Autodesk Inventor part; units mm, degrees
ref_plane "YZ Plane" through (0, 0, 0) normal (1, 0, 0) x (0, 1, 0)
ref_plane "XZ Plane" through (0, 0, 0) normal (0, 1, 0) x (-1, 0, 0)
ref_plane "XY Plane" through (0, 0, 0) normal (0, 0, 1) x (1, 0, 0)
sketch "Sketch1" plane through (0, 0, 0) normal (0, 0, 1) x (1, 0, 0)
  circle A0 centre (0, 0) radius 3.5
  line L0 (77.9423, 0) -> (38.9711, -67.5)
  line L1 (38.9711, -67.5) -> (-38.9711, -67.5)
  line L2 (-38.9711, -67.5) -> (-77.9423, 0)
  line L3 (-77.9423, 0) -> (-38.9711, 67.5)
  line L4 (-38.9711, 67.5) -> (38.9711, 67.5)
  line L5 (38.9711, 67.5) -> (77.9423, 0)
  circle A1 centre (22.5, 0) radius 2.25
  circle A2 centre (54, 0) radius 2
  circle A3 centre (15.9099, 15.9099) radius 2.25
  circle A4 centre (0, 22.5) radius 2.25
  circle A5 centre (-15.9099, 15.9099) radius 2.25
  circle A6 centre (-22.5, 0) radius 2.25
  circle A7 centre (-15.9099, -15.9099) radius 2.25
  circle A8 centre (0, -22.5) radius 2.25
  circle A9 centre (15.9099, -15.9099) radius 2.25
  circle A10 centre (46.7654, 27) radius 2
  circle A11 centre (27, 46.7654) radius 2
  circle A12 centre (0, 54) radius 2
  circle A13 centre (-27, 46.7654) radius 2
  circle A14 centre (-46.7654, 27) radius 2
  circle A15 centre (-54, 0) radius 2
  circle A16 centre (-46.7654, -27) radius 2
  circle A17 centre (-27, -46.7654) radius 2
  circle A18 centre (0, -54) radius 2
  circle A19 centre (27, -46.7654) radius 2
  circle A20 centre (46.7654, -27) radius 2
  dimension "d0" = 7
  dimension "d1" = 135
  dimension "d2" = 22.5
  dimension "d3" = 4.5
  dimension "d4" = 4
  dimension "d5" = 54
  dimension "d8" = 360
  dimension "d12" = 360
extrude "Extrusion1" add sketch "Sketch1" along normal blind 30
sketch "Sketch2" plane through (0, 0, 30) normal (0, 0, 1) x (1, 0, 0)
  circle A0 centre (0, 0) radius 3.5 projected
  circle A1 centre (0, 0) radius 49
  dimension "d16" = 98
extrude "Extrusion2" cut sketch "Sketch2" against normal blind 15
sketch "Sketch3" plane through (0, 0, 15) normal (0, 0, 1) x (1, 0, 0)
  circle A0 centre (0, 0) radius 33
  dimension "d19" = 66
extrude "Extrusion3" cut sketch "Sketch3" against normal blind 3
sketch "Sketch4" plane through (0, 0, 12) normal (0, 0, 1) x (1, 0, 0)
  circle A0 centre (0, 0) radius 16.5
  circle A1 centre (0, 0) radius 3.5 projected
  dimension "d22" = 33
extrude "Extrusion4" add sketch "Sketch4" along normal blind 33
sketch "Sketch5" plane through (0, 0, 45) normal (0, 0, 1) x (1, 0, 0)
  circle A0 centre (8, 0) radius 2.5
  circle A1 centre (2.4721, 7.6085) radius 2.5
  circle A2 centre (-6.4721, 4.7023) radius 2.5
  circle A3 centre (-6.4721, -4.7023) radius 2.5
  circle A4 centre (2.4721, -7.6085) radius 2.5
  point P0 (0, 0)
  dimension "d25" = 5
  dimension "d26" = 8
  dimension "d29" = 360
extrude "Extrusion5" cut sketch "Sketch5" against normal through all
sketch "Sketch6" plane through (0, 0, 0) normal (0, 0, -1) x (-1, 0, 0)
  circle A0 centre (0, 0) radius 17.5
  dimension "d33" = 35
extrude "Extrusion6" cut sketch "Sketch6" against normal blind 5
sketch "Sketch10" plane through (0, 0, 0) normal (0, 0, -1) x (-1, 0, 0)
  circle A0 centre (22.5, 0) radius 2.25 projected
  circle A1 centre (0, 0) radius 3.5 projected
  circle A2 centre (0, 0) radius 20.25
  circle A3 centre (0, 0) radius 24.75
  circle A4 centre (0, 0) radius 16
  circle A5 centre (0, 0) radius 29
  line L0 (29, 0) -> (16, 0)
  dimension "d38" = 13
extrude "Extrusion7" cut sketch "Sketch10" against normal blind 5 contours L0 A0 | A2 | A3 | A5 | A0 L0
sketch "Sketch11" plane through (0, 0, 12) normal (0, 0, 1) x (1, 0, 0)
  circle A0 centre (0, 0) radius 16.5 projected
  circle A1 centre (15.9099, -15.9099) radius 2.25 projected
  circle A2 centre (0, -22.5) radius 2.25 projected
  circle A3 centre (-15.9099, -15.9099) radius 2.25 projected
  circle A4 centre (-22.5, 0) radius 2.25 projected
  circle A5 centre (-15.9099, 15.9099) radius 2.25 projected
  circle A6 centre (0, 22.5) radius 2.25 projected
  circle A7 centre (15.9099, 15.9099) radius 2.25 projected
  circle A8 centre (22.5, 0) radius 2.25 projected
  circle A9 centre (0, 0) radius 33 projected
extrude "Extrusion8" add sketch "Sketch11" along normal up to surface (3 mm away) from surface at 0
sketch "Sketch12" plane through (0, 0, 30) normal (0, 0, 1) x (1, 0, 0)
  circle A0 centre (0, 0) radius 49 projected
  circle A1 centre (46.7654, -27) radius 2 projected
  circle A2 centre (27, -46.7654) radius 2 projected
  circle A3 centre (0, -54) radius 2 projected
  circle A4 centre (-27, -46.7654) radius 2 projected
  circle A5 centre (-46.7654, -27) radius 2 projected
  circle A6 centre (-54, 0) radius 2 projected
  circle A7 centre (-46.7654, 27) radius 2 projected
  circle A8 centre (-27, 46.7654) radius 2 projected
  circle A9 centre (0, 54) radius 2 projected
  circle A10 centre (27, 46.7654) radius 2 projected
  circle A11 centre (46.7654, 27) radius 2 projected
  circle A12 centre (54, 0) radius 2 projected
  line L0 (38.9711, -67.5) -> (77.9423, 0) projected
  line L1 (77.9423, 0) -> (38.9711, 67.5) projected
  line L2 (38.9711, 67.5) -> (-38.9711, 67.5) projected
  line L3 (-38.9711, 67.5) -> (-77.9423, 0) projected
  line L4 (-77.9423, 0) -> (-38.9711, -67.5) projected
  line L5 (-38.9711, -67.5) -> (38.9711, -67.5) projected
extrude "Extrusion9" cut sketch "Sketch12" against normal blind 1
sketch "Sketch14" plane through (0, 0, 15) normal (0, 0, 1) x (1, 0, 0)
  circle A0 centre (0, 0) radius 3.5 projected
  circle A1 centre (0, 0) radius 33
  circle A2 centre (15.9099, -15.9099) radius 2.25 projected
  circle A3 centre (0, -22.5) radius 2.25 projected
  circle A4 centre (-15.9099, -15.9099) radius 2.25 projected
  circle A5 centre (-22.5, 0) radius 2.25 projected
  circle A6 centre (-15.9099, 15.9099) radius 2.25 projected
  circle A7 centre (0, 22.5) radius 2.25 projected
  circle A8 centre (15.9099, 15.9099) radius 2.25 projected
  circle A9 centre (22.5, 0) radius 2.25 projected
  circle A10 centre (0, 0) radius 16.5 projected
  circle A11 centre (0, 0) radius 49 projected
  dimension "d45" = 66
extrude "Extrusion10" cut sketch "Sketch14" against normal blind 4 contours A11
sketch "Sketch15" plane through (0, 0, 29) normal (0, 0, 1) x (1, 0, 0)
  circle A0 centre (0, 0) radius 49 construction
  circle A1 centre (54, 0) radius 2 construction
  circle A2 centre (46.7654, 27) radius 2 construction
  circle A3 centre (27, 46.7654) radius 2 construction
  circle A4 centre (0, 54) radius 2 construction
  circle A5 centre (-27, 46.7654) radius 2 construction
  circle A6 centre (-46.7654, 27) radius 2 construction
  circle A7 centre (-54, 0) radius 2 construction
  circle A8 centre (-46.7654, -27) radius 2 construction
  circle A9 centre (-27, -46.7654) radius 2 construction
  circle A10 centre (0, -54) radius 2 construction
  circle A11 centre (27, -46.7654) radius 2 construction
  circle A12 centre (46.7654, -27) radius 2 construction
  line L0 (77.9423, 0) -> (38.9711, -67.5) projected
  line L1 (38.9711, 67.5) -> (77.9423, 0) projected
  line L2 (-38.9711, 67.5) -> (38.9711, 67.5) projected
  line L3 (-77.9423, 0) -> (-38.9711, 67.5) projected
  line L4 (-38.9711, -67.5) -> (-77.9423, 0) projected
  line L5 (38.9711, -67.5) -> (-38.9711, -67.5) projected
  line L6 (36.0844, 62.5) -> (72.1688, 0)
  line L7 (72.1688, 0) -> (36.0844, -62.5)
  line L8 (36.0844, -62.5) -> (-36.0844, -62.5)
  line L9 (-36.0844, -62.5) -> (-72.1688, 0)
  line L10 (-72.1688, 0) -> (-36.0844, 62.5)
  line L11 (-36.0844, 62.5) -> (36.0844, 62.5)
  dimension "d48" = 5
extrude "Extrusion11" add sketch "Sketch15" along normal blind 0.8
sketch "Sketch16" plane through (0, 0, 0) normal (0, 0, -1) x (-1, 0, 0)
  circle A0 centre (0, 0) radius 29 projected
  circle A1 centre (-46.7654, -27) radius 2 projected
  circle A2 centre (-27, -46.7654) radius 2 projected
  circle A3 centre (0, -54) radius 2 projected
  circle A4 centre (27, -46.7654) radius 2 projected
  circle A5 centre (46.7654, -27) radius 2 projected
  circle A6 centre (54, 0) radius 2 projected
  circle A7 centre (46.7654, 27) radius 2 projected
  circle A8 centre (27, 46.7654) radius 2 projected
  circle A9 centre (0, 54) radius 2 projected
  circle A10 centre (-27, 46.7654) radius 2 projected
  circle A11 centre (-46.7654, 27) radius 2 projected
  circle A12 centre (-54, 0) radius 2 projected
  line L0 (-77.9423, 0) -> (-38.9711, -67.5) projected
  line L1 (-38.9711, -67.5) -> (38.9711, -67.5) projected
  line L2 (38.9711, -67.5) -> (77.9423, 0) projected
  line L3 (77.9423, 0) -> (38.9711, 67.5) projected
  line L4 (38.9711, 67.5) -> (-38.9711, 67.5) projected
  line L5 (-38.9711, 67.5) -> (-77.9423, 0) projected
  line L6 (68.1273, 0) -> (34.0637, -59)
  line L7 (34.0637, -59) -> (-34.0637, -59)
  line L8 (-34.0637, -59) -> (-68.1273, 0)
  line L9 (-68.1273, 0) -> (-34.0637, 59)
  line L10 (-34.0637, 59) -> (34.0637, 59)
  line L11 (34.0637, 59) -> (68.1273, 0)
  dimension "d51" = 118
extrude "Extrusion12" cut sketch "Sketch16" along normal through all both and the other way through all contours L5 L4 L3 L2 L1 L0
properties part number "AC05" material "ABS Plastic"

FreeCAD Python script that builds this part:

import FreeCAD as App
import Part
import Sketcher

V = App.Vector
Q = App.Units.Quantity

doc = App.newDocument("Part")
body = doc.addObject("PartDesign::Body", "Body")

# Sketch on XY plane
sketch1 = body.newObject("Sketcher::SketchObject", "Sketch")
sketch1.AttachmentSupport = (doc.getObject("XY_Plane"), [""])
sketch1.MapMode = "FlatFace"
sketch1.addGeometry([
    Part.LineSegment(V(39, -67.5, 0), V(77.9, 0, 0)),  # 0
    Part.LineSegment(V(77.9, 0, 0), V(39, 67.5, 0)),  # 1
    Part.LineSegment(V(39, 67.5, 0), V(-39, 67.5, 0)),  # 2
    Part.LineSegment(V(-39, 67.5, 0), V(-77.9, 0, 0)),  # 3
    Part.LineSegment(V(-77.9, 0, 0), V(-39, -67.5, 0)),  # 4
    Part.LineSegment(V(-39, -67.5, 0), V(39, -67.5, 0)),  # 5
    Part.Circle(V(-27, -46.8, 0), V(0, 0, 1), 2),  # 6
    Part.Circle(V(-46.8, -27, 0), V(0, 0, 1), 2),  # 7
    Part.Circle(V(-15.9, -15.9, 0), V(0, 0, 1), 2.2),  # 8
    Part.Circle(V(0, -54, 0), V(0, 0, 1), 2),  # 9
    Part.Circle(V(27, -46.8, 0), V(0, 0, 1), 2),  # 10
    Part.Circle(V(0, -22.5, 0), V(0, 0, 1), 2.2),  # 11
    Part.Circle(V(15.9, -15.9, 0), V(0, 0, 1), 2.2),  # 12
    Part.Circle(V(46.8, -27, 0), V(0, 0, 1), 2),  # 13
    Part.Circle(V(-54, 0, 0), V(0, 0, 1), 2),  # 14
    Part.Circle(V(-46.8, 27, 0), V(0, 0, 1), 2),  # 15
    Part.Circle(V(-22.5, 0, 0), V(0, 0, 1), 2.2),  # 16
    Part.Circle(V(-15.9, 15.9, 0), V(0, 0, 1), 2.2),  # 17
    Part.Circle(V(-27, 46.8, 0), V(0, 0, 1), 2),  # 18
    Part.Circle(V(0, 0, 0), V(0, 0, 1), 3.5),  # 19
    Part.Circle(V(15.9, 15.9, 0), V(0, 0, 1), 2.2),  # 20
    Part.Circle(V(22.5, 0, 0), V(0, 0, 1), 2.2),  # 21
    Part.Circle(V(0, 22.5, 0), V(0, 0, 1), 2.2),  # 22
    Part.Circle(V(54, 0, 0), V(0, 0, 1), 2),  # 23
    Part.Circle(V(46.8, 27, 0), V(0, 0, 1), 2),  # 24
    Part.Circle(V(27, 46.8, 0), V(0, 0, 1), 2),  # 25
    Part.Circle(V(0, 54, 0), V(0, 0, 1), 2),  # 26
], False)
sketch1.addConstraint([
    Sketcher.Constraint("Coincident", 0, 2, 1, 1),
    Sketcher.Constraint("Coincident", 1, 2, 2, 1),
    Sketcher.Constraint("Coincident", 2, 2, 3, 1),
    Sketcher.Constraint("Coincident", 3, 2, 4, 1),
    Sketcher.Constraint("Coincident", 4, 2, 5, 1),
    Sketcher.Constraint("Coincident", 5, 2, 0, 1),
    Sketcher.Constraint("Horizontal", 2),
    Sketcher.Constraint("Horizontal", 5),
    Sketcher.Constraint("Coincident", 19, 3, -1, 1),
    Sketcher.Constraint("Equal", 6, 7),
    Sketcher.Constraint("Equal", 7, 9),
    Sketcher.Constraint("Equal", 9, 10),
    Sketcher.Constraint("Equal", 8, 11),
    Sketcher.Constraint("Equal", 11, 12),
    Sketcher.Constraint("Equal", 10, 13),
    Sketcher.Constraint("Equal", 13, 14),
    Sketcher.Constraint("Equal", 14, 15),
    Sketcher.Constraint("Equal", 12, 16),
    Sketcher.Constraint("Equal", 16, 17),
    Sketcher.Constraint("Equal", 15, 18),
    Sketcher.Constraint("Equal", 17, 20),
    Sketcher.Constraint("Equal", 20, 21),
    Sketcher.Constraint("Equal", 21, 22),
    Sketcher.Constraint("Equal", 18, 23),
    Sketcher.Constraint("Equal", 23, 24),
    Sketcher.Constraint("Equal", 24, 25),
    Sketcher.Constraint("Equal", 25, 26),
    Sketcher.Constraint("Symmetric", 13, 3, 15, 3, -1, 1),
    Sketcher.Constraint("Symmetric", 12, 3, 17, 3, -1, 1),
    Sketcher.Constraint("Symmetric", 10, 3, 18, 3, -1, 1),
    Sketcher.Constraint("Symmetric", 8, 3, 20, 3, -1, 1),
    Sketcher.Constraint("Symmetric", 16, 3, 21, 3, -1, 1),
    Sketcher.Constraint("Symmetric", 11, 3, 22, 3, -1, 1),
    Sketcher.Constraint("Symmetric", 14, 3, 23, 3, -1, 1),
    Sketcher.Constraint("Symmetric", 7, 3, 24, 3, -1, 1),
    Sketcher.Constraint("Symmetric", 6, 3, 25, 3, -1, 1),
    Sketcher.Constraint("Symmetric", 9, 3, 26, 3, -1, 1),
    Sketcher.Constraint("Symmetric", 0, 2, 3, 2, -1, 1),
    Sketcher.Constraint("Symmetric", 1, 2, 4, 2, -1, 1),
    Sketcher.Constraint("Symmetric", 6, 3, 10, 3, -2),
    Sketcher.Constraint("Symmetric", 8, 3, 12, 3, -2),
    Sketcher.Constraint("Symmetric", 7, 3, 13, 3, -2),
    Sketcher.Constraint("PointOnObject", 9, 3, -2),
    Sketcher.Constraint("PointOnObject", 11, 3, -2),
    Sketcher.Constraint("PointOnObject", 14, 3, -1),
    Sketcher.Constraint("PointOnObject", 16, 3, -1),
    Sketcher.Constraint("PointOnObject", 0, 2, -1),
    Sketcher.Constraint("Parallel", 0, 3),
    Sketcher.Constraint("Vertical", 2, 2, 4, 2),
    Sketcher.Constraint("Diameter", 6, 4.0),
    Sketcher.Constraint("Diameter", 19, 7.0),
    Sketcher.Constraint("Diameter", 8, 4.5),
    Sketcher.Constraint("DistanceY", 9, 3, -1, 1, 54.0),
    Sketcher.Constraint("DistanceX", 14, 3, -1, 1, 54.0),
    Sketcher.Constraint("DistanceX", 6, 3, 10, 3, 54.0),
    Sketcher.Constraint("DistanceY", 7, 3, 15, 3, 54.0),
    Sketcher.Constraint("DistanceY", 11, 3, -1, 1, 22.5),
    Sketcher.Constraint("DistanceX", 16, 3, -1, 1, 22.5),
    Sketcher.Constraint("Angle", 0, Q("60 deg")),
    Sketcher.Constraint("DistanceY", 22, 3, 1, 2, 45.0),
    Sketcher.Constraint("DistanceX", 8, 3, -1, 1, 15.91),
    Sketcher.Constraint("DistanceY", 8, 3, -1, 1, 15.91),
    Sketcher.Constraint("DistanceX", 2, 2, 2, 1, 77.9422),
    Sketcher.Constraint("DistanceX", 13, 3, 0, 2, 31.177),
    Sketcher.Constraint("DistanceY", 6, 3, -1, 1, 46.7654),
])
pad1 = body.newObject("PartDesign::Pad", "Pad")
pad1.Profile = sketch1
pad1.Length = 30

# Sketch on XY plane
sketch2 = body.newObject("Sketcher::SketchObject", "Sketch001")
sketch2.AttachmentSupport = (doc.getObject("XY_Plane"), [""])
sketch2.MapMode = "FlatFace"
sketch2.AttachmentOffset = App.Placement(V(0, 0, 30), App.Rotation())
sketch2.addGeometry([
    Part.Circle(V(0, 0, 0), V(0, 0, 1), 49),
    Part.Circle(V(0, 0, 0), V(0, 0, 1), 3.5),
], False)
sketch2.addConstraint([
    Sketcher.Constraint("Coincident", 0, 3, -1, 1),
    Sketcher.Constraint("Coincident", 1, 3, -1, 1),
    Sketcher.Constraint("Diameter", 0, 98.0),
    Sketcher.Constraint("Diameter", 1, 7.0),
])
pocket1 = body.newObject("PartDesign::Pocket", "Pocket")
pocket1.Profile = sketch2
pocket1.Length = 15

# Sketch on XY plane
sketch3 = body.newObject("Sketcher::SketchObject", "Sketch002")
sketch3.AttachmentSupport = (doc.getObject("XY_Plane"), [""])
sketch3.MapMode = "FlatFace"
sketch3.AttachmentOffset = App.Placement(V(0, 0, 15), App.Rotation())
sketch3.addGeometry(Part.Circle(V(0, 0, 0), V(0, 0, 1), 33), False)
sketch3.addConstraint([
    Sketcher.Constraint("Coincident", 0, 3, -1, 1),
    Sketcher.Constraint("Diameter", 0, 66.0),
])
pocket2 = body.newObject("PartDesign::Pocket", "Pocket001")
pocket2.Profile = sketch3
pocket2.Length = 3

# Sketch on XY plane
sketch4 = body.newObject("Sketcher::SketchObject", "Sketch003")
sketch4.AttachmentSupport = (doc.getObject("XY_Plane"), [""])
sketch4.MapMode = "FlatFace"
sketch4.AttachmentOffset = App.Placement(V(0, 0, 12), App.Rotation())
sketch4.addGeometry([
    Part.Circle(V(0, 0, 0), V(0, 0, 1), 16.5),
    Part.Circle(V(0, 0, 0), V(0, 0, 1), 3.5),
], False)
sketch4.addConstraint([
    Sketcher.Constraint("Coincident", 0, 3, -1, 1),
    Sketcher.Constraint("Coincident", 1, 3, -1, 1),
    Sketcher.Constraint("Diameter", 0, 33.0),
    Sketcher.Constraint("Diameter", 1, 7.0),
])
pad2 = body.newObject("PartDesign::Pad", "Pad001")
pad2.Profile = sketch4
pad2.Length = 33

# Sketch on XY plane
sketch5 = body.newObject("Sketcher::SketchObject", "Sketch004")
sketch5.AttachmentSupport = (doc.getObject("XY_Plane"), [""])
sketch5.MapMode = "FlatFace"
sketch5.AttachmentOffset = App.Placement(V(0, 0, 45), App.Rotation())
sketch5.addGeometry([
    Part.Circle(V(8, 0, 0), V(0, 0, 1), 2.5),  # 0
    Part.Circle(V(2.5, 7.6, 0), V(0, 0, 1), 2.5),  # 1
    Part.Circle(V(-6.5, 4.7, 0), V(0, 0, 1), 2.5),  # 2
    Part.Circle(V(-6.5, -4.7, 0), V(0, 0, 1), 2.5),  # 3
    Part.Circle(V(2.5, -7.6, 0), V(0, 0, 1), 2.5),  # 4
], False)
sketch5.addConstraint([
    Sketcher.Constraint("Equal", 0, 1),
    Sketcher.Constraint("Equal", 1, 2),
    Sketcher.Constraint("Equal", 2, 3),
    Sketcher.Constraint("Equal", 3, 4),
    Sketcher.Constraint("Symmetric", 2, 3, 3, 3, -1),
    Sketcher.Constraint("Symmetric", 1, 3, 4, 3, -1),
    Sketcher.Constraint("PointOnObject", 0, 3, -1),
    Sketcher.Constraint("Diameter", 0, 5.0),
    Sketcher.Constraint("DistanceX", -1, 1, 0, 3, 8.0),
    Sketcher.Constraint("DistanceX", -1, 1, 1, 3, 2.472),
    Sketcher.Constraint("DistanceX", 2, 3, -1, 1, 6.472),
    Sketcher.Constraint("DistanceY", 4, 3, 1, 3, 15.217),
    Sketcher.Constraint("DistanceY", -1, 1, 2, 3, 4.7023),
])
pocket3 = body.newObject("PartDesign::Pocket", "Pocket002")
pocket3.Profile = sketch5
pocket3.Type = "ThroughAll"

# Sketch on XY plane
sketch6 = body.newObject("Sketcher::SketchObject", "Sketch005")
sketch6.AttachmentSupport = (doc.getObject("XY_Plane"), [""])
sketch6.MapMode = "FlatFace"
sketch6.addGeometry(Part.Circle(V(0, 0, 0), V(0, 0, 1), 18), False)
sketch6.addConstraint([
    Sketcher.Constraint("Coincident", 0, 3, -1, 1),
    Sketcher.Constraint("Diameter", 0, 35.0),
])
pocket4 = body.newObject("PartDesign::Pocket", "Pocket003")
pocket4.Profile = sketch6
pocket4.Length = 5
pocket4.Reversed = True

# Sketch on XY plane
sketch7 = body.newObject("Sketcher::SketchObject", "Sketch006")
sketch7.AttachmentSupport = (doc.getObject("XY_Plane"), [""])
sketch7.MapMode = "FlatFace"
sketch7.addGeometry([
    Part.Circle(V(0, 0, 0), V(0, 0, 1), 29),
    Part.Circle(V(0, 0, 0), V(0, 0, 1), 16),
], False)
sketch7.addConstraint([
    Sketcher.Constraint("Coincident", 0, 3, -1, 1),
    Sketcher.Constraint("Coincident", 1, 3, -1, 1),
    Sketcher.Constraint("Diameter", 0, 58.0),
    Sketcher.Constraint("Diameter", 1, 32.0),
])
pocket5 = body.newObject("PartDesign::Pocket", "Pocket004")
pocket5.Profile = sketch7
pocket5.Length = 5
pocket5.Reversed = True

# Sketch on XY plane
sketch8 = body.newObject("Sketcher::SketchObject", "Sketch007")
sketch8.AttachmentSupport = (doc.getObject("XY_Plane"), [""])
sketch8.MapMode = "FlatFace"
sketch8.AttachmentOffset = App.Placement(V(0, 0, 12), App.Rotation())
sketch8.addGeometry([
    Part.Circle(V(0, 0, 0), V(0, 0, 1), 33),  # 0
    Part.Circle(V(-15.9, -15.9, 0), V(0, 0, 1), 2.2),  # 1
    Part.Circle(V(0, -22.5, 0), V(0, 0, 1), 2.2),  # 2
    Part.Circle(V(15.9, -15.9, 0), V(0, 0, 1), 2.2),  # 3
    Part.Circle(V(-22.5, 0, 0), V(0, 0, 1), 2.2),  # 4
    Part.Circle(V(-15.9, 15.9, 0), V(0, 0, 1), 2.2),  # 5
    Part.Circle(V(0, 0, 0), V(0, 0, 1), 16.5),  # 6
    Part.Circle(V(15.9, 15.9, 0), V(0, 0, 1), 2.2),  # 7
    Part.Circle(V(22.5, 0, 0), V(0, 0, 1), 2.2),  # 8
    Part.Circle(V(0, 22.5, 0), V(0, 0, 1), 2.2),  # 9
], False)
sketch8.addConstraint([
    Sketcher.Constraint("Coincident", 0, 3, -1, 1),
    Sketcher.Constraint("Coincident", 6, 3, -1, 1),
    Sketcher.Constraint("Equal", 1, 2),
    Sketcher.Constraint("Equal", 2, 3),
    Sketcher.Constraint("Equal", 3, 4),
    Sketcher.Constraint("Equal", 4, 5),
    Sketcher.Constraint("Equal", 5, 7),
    Sketcher.Constraint("Equal", 7, 8),
    Sketcher.Constraint("Equal", 8, 9),
    Sketcher.Constraint("Symmetric", 3, 3, 5, 3, -1, 1),
    Sketcher.Constraint("Symmetric", 1, 3, 7, 3, -1, 1),
    Sketcher.Constraint("Symmetric", 4, 3, 8, 3, -1, 1),
    Sketcher.Constraint("Symmetric", 2, 3, 9, 3, -1, 1),
    Sketcher.Constraint("Symmetric", 1, 3, 3, 3, -2),
    Sketcher.Constraint("PointOnObject", 2, 3, -2),
    Sketcher.Constraint("PointOnObject", 4, 3, -1),
    Sketcher.Constraint("Diameter", 0, 66.0),
    Sketcher.Constraint("Diameter", 6, 33.0),
    Sketcher.Constraint("Diameter", 1, 4.5),
    Sketcher.Constraint("DistanceY", 2, 3, -1, 1, 22.5),
    Sketcher.Constraint("DistanceX", 4, 3, -1, 1, 22.5),
    Sketcher.Constraint("DistanceX", 1, 3, -1, 1, 15.91),
    Sketcher.Constraint("DistanceY", 1, 3, -1, 1, 15.91),
])
pad3 = body.newObject("PartDesign::Pad", "Pad002")
pad3.Profile = sketch8
pad3.Length = 3

# Sketch on XY plane
sketch9 = body.newObject("Sketcher::SketchObject", "Sketch008")
sketch9.AttachmentSupport = (doc.getObject("XY_Plane"), [""])
sketch9.MapMode = "FlatFace"
sketch9.AttachmentOffset = App.Placement(V(0, 0, 30), App.Rotation())
sketch9.addGeometry([
    Part.LineSegment(V(-39, -67.5, 0), V(39, -67.5, 0)),  # 0
    Part.LineSegment(V(39, -67.5, 0), V(77.9, 0, 0)),  # 1
    Part.LineSegment(V(77.9, 0, 0), V(39, 67.5, 0)),  # 2
    Part.LineSegment(V(39, 67.5, 0), V(-39, 67.5, 0)),  # 3
    Part.LineSegment(V(-39, 67.5, 0), V(-77.9, 0, 0)),  # 4
    Part.LineSegment(V(-77.9, 0, 0), V(-39, -67.5, 0)),  # 5
    Part.Circle(V(-27, -46.8, 0), V(0, 0, 1), 2),  # 6
    Part.Circle(V(-46.8, -27, 0), V(0, 0, 1), 2),  # 7
    Part.Circle(V(0, -54, 0), V(0, 0, 1), 2),  # 8
    Part.Circle(V(27, -46.8, 0), V(0, 0, 1), 2),  # 9
    Part.Circle(V(46.8, -27, 0), V(0, 0, 1), 2),  # 10
    Part.Circle(V(-54, 0, 0), V(0, 0, 1), 2),  # 11
    Part.Circle(V(-46.8, 27, 0), V(0, 0, 1), 2),  # 12
    Part.Circle(V(-27, 46.8, 0), V(0, 0, 1), 2),  # 13
    Part.Circle(V(0, 0, 0), V(0, 0, 1), 49),  # 14
    Part.Circle(V(54, 0, 0), V(0, 0, 1), 2),  # 15
    Part.Circle(V(46.8, 27, 0), V(0, 0, 1), 2),  # 16
    Part.Circle(V(27, 46.8, 0), V(0, 0, 1), 2),  # 17
    Part.Circle(V(0, 54, 0), V(0, 0, 1), 2),  # 18
], False)
sketch9.addConstraint([
    Sketcher.Constraint("Coincident", 0, 2, 1, 1),
    Sketcher.Constraint("Coincident", 1, 2, 2, 1),
    Sketcher.Constraint("Coincident", 2, 2, 3, 1),
    Sketcher.Constraint("Coincident", 3, 2, 4, 1),
    Sketcher.Constraint("Coincident", 4, 2, 5, 1),
    Sketcher.Constraint("Coincident", 5, 2, 0, 1),
    Sketcher.Constraint("Horizontal", 0),
    Sketcher.Constraint("Horizontal", 3),
    Sketcher.Constraint("Coincident", 14, 3, -1, 1),
    Sketcher.Constraint("Equal", 6, 7),
    Sketcher.Constraint("Equal", 7, 8),
    Sketcher.Constraint("Equal", 8, 9),
    Sketcher.Constraint("Equal", 9, 10),
    Sketcher.Constraint("Equal", 10, 11),
    Sketcher.Constraint("Equal", 11, 12),
    Sketcher.Constraint("Equal", 12, 13),
    Sketcher.Constraint("Equal", 13, 15),
    Sketcher.Constraint("Equal", 15, 16),
    Sketcher.Constraint("Equal", 16, 17),
    Sketcher.Constraint("Equal", 17, 18),
    Sketcher.Constraint("Symmetric", 10, 3, 12, 3, -1, 1),
    Sketcher.Constraint("Symmetric", 9, 3, 13, 3, -1, 1),
    Sketcher.Constraint("Symmetric", 11, 3, 15, 3, -1, 1),
    Sketcher.Constraint("Symmetric", 7, 3, 16, 3, -1, 1),
    Sketcher.Constraint("Symmetric", 6, 3, 17, 3, -1, 1),
    Sketcher.Constraint("Symmetric", 8, 3, 18, 3, -1, 1),
    Sketcher.Constraint("Symmetric", 0, 2, 3, 2, -1, 1),
    Sketcher.Constraint("Symmetric", 1, 2, 4, 2, -1, 1),
    Sketcher.Constraint("Symmetric", 6, 3, 9, 3, -2),
    Sketcher.Constraint("Symmetric", 7, 3, 10, 3, -2),
    Sketcher.Constraint("PointOnObject", 8, 3, -2),
    Sketcher.Constraint("PointOnObject", 11, 3, -1),
    Sketcher.Constraint("PointOnObject", 1, 2, -1),
    Sketcher.Constraint("Parallel", 2, 5),
    Sketcher.Constraint("Vertical", 0, 2, 2, 2),
    Sketcher.Constraint("Diameter", 6, 4.0),
    Sketcher.Constraint("Diameter", 14, 98.0),
    Sketcher.Constraint("Angle", 1, Q("60 deg")),
    Sketcher.Constraint("DistanceX", 6, 3, -1, 1, 27.0),
    Sketcher.Constraint("DistanceY", 7, 3, -1, 1, 27.0),
    Sketcher.Constraint("DistanceY", 8, 3, -1, 1, 54.0),
    Sketcher.Constraint("DistanceX", 11, 3, -1, 1, 54.0),
    Sketcher.Constraint("DistanceY", 0, 2, -1, 1, 67.5),
    Sketcher.Constraint("DistanceX", 0, 1, 0, 2, 77.9422),
    Sketcher.Constraint("DistanceX", 10, 3, 1, 2, 31.177),
    Sketcher.Constraint("DistanceY", 6, 3, -1, 1, 46.7654),
])
pocket6 = body.newObject("PartDesign::Pocket", "Pocket005")
pocket6.Profile = sketch9
pocket6.Length = 1

# Sketch on XY plane
sketch10 = body.newObject("Sketcher::SketchObject", "Sketch009")
sketch10.AttachmentSupport = (doc.getObject("XY_Plane"), [""])
sketch10.MapMode = "FlatFace"
sketch10.AttachmentOffset = App.Placement(V(0, 0, 15), App.Rotation())
sketch10.addGeometry([
    Part.Circle(V(0, 0, 0), V(0, 0, 1), 49),
    Part.Circle(V(0, 0, 0), V(0, 0, 1), 33),
], False)
sketch10.addConstraint([
    Sketcher.Constraint("Coincident", 0, 3, -1, 1),
    Sketcher.Constraint("Coincident", 1, 3, -1, 1),
    Sketcher.Constraint("Diameter", 1, 66.0),
    Sketcher.Constraint("Diameter", 0, 98.0),
])
pocket7 = body.newObject("PartDesign::Pocket", "Pocket006")
pocket7.Profile = sketch10
pocket7.Length = 4

# Sketch on XY plane
sketch11 = body.newObject("Sketcher::SketchObject", "Sketch010")
sketch11.AttachmentSupport = (doc.getObject("XY_Plane"), [""])
sketch11.MapMode = "FlatFace"
sketch11.AttachmentOffset = App.Placement(V(0, 0, 29), App.Rotation())
sketch11.addGeometry([
    Part.LineSegment(V(39, -68, 0), V(78, 0, 0)),  # 0
    Part.LineSegment(V(78, 0, 0), V(39, 68, 0)),  # 1
    Part.LineSegment(V(39, 68, 0), V(-39, 68, 0)),  # 2
    Part.LineSegment(V(-39, 68, 0), V(-78, 0, 0)),  # 3
    Part.LineSegment(V(-78, 0, 0), V(-39, -68, 0)),  # 4
    Part.LineSegment(V(-39, -68, 0), V(39, -68, 0)),  # 5
    Part.LineSegment(V(-36, 62, 0), V(36, 62, 0)),  # 6
    Part.LineSegment(V(36, 62, 0), V(72, 0, 0)),  # 7
    Part.LineSegment(V(72, 0, 0), V(36, -62, 0)),  # 8
    Part.LineSegment(V(36, -62, 0), V(-36, -62, 0)),  # 9
    Part.LineSegment(V(-36, -62, 0), V(-72, 0, 0)),  # 10
    Part.LineSegment(V(-72, 0, 0), V(-36, 62, 0)),  # 11
], False)
sketch11.addConstraint([
    Sketcher.Constraint("Coincident", 0, 2, 1, 1),
    Sketcher.Constraint("Coincident", 1, 2, 2, 1),
    Sketcher.Constraint("Coincident", 2, 2, 3, 1),
    Sketcher.Constraint("Coincident", 3, 2, 4, 1),
    Sketcher.Constraint("Coincident", 4, 2, 5, 1),
    Sketcher.Constraint("Coincident", 5, 2, 0, 1),
    Sketcher.Constraint("Coincident", 6, 2, 7, 1),
    Sketcher.Constraint("Coincident", 7, 2, 8, 1),
    Sketcher.Constraint("Coincident", 8, 2, 9, 1),
    Sketcher.Constraint("Coincident", 9, 2, 10, 1),
    Sketcher.Constraint("Coincident", 10, 2, 11, 1),
    Sketcher.Constraint("Coincident", 11, 2, 6, 1),
    Sketcher.Constraint("Horizontal", 2),
    Sketcher.Constraint("Horizontal", 5),
    Sketcher.Constraint("Horizontal", 6),
    Sketcher.Constraint("Horizontal", 9),
    Sketcher.Constraint("Symmetric", 0, 2, 3, 2, -1, 1),
    Sketcher.Constraint("Symmetric", 1, 2, 4, 2, -1, 1),
    Sketcher.Constraint("Symmetric", 6, 2, 9, 2, -1, 1),
    Sketcher.Constraint("Symmetric", 7, 2, 10, 2, -1, 1),
    Sketcher.Constraint("PointOnObject", 0, 2, -1),
    Sketcher.Constraint("PointOnObject", 7, 2, -1),
    Sketcher.Constraint("Parallel", 0, 3),
    Sketcher.Constraint("Parallel", 4, 7),
    Sketcher.Constraint("Parallel", 3, 8),
    Sketcher.Constraint("Parallel", 8, 11),
    Sketcher.Constraint("Vertical", 2, 2, 4, 2),
    Sketcher.Constraint("DistanceY", 6, 2, 1, 2, 5.0),
    Sketcher.Constraint("Angle", 0, Q("60 deg")),
    Sketcher.Constraint("DistanceY", 4, 2, 2, 2, 135.0),
    Sketcher.Constraint("DistanceX", 2, 2, 7, 2, 111.14),
    Sketcher.Constraint("DistanceX", 2, 2, 2, 1, 77.9422),
])
pad4 = body.newObject("PartDesign::Pad", "Pad003")
pad4.Profile = sketch11
pad4.Length = 0.8

# Sketch on XY plane
sketch12 = body.newObject("Sketcher::SketchObject", "Sketch011")
sketch12.AttachmentSupport = (doc.getObject("XY_Plane"), [""])
sketch12.MapMode = "FlatFace"
sketch12.addGeometry([
    Part.LineSegment(V(39, 68, 0), V(78, 0, 0)),  # 0
    Part.LineSegment(V(78, 0, 0), V(39, -68, 0)),  # 1
    Part.LineSegment(V(39, -68, 0), V(-39, -68, 0)),  # 2
    Part.LineSegment(V(-39, -68, 0), V(-78, 0, 0)),  # 3
    Part.LineSegment(V(-78, 0, 0), V(-39, 68, 0)),  # 4
    Part.LineSegment(V(-39, 68, 0), V(39, 68, 0)),  # 5
    Part.LineSegment(V(-34, 59, 0), V(-68, 0, 0)),  # 6
    Part.LineSegment(V(-68, 0, 0), V(-34, -59, 0)),  # 7
    Part.LineSegment(V(-34, -59, 0), V(34, -59, 0)),  # 8
    Part.LineSegment(V(34, -59, 0), V(68, 0, 0)),  # 9
    Part.LineSegment(V(68, 0, 0), V(34, 59, 0)),  # 10
    Part.LineSegment(V(34, 59, 0), V(-34, 59, 0)),  # 11
], False)
sketch12.addConstraint([
    Sketcher.Constraint("Coincident", 0, 2, 1, 1),
    Sketcher.Constraint("Coincident", 1, 2, 2, 1),
    Sketcher.Constraint("Coincident", 2, 2, 3, 1),
    Sketcher.Constraint("Coincident", 3, 2, 4, 1),
    Sketcher.Constraint("Coincident", 4, 2, 5, 1),
    Sketcher.Constraint("Coincident", 5, 2, 0, 1),
    Sketcher.Constraint("Coincident", 6, 2, 7, 1),
    Sketcher.Constraint("Coincident", 7, 2, 8, 1),
    Sketcher.Constraint("Coincident", 8, 2, 9, 1),
    Sketcher.Constraint("Coincident", 9, 2, 10, 1),
    Sketcher.Constraint("Coincident", 10, 2, 11, 1),
    Sketcher.Constraint("Coincident", 11, 2, 6, 1),
    Sketcher.Constraint("Horizontal", 2),
    Sketcher.Constraint("Horizontal", 5),
    Sketcher.Constraint("Horizontal", 8),
    Sketcher.Constraint("Horizontal", 11),
    Sketcher.Constraint("Symmetric", 0, 2, 3, 2, -1, 1),
    Sketcher.Constraint("Symmetric", 1, 2, 4, 2, -1, 1),
    Sketcher.Constraint("Symmetric", 6, 2, 9, 2, -1, 1),
    Sketcher.Constraint("Symmetric", 7, 2, 10, 2, -1, 1),
    Sketcher.Constraint("PointOnObject", 0, 2, -1),
    Sketcher.Constraint("PointOnObject", 6, 2, -1),
    Sketcher.Constraint("Parallel", 0, 3),
    Sketcher.Constraint("Parallel", 4, 6),
    Sketcher.Constraint("Parallel", 3, 7),
    Sketcher.Constraint("Parallel", 6, 9),
    Sketcher.Constraint("Vertical", 2, 2, 4, 2),
    Sketcher.Constraint("DistanceY", 8, 2, 10, 2, 118.0),
    Sketcher.Constraint("Angle", 0, Q("-60 deg")),
    Sketcher.Constraint("DistanceY", 2, 2, 4, 2, 135.0),
    Sketcher.Constraint("DistanceX", 2, 2, 2, 1, 77.9422),
    Sketcher.Constraint("DistanceX", 8, 1, 8, 2, 68.1274),
])
pocket8 = body.newObject("PartDesign::Pocket", "Pocket007")
pocket8.Profile = sketch12
pocket8.Type = "ThroughAll"
pocket8.Midplane = True

doc.recompute()
